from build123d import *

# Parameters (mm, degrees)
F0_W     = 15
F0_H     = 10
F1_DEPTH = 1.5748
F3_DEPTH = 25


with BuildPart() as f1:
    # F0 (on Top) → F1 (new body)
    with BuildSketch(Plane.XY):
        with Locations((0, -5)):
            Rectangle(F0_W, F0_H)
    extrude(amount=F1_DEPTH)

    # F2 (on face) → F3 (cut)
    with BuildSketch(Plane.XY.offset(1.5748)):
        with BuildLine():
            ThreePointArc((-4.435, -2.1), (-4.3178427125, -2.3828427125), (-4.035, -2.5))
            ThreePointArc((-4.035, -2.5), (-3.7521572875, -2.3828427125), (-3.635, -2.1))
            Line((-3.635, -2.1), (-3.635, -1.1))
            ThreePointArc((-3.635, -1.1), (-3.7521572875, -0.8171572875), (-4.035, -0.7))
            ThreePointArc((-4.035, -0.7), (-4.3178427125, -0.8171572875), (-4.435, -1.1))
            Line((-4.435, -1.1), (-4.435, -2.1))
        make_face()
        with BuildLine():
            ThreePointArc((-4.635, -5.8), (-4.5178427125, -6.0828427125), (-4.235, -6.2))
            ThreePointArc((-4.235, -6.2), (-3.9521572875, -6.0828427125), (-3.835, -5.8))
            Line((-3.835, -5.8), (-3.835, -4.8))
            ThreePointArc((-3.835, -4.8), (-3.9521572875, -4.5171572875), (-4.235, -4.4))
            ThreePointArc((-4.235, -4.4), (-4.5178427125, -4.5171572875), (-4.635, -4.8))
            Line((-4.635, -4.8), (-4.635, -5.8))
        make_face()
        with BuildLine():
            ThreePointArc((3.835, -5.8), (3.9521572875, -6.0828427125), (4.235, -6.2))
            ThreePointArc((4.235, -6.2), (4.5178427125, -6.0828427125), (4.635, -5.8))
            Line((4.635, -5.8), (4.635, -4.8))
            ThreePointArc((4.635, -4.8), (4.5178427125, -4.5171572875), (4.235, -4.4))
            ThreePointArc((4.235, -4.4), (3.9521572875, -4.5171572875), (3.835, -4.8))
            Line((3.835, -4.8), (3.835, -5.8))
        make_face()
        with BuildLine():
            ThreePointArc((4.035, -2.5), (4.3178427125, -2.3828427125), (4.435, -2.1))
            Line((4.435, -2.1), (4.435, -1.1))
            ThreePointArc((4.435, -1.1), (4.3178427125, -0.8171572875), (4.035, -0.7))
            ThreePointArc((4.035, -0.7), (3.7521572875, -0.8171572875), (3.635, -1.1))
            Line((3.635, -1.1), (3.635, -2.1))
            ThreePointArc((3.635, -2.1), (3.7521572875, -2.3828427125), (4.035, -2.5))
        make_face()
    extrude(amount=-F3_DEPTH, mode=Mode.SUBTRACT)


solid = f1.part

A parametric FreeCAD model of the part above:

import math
import FreeCAD as App
import Part
import Sketcher

doc = App.newDocument("Part")
body = doc.addObject("PartDesign::Body", "Body")

# Sketch on XY plane
sketch1 = doc.addObject("Sketcher::SketchObject", "Sketch")
body.addObject(sketch1)
sketch1.AttachmentSupport = (doc.XY_Plane, [""])
sketch1.MapMode = "FlatFace"
sketch1.addGeometry(Part.LineSegment(App.Vector(-7.5, 0, 0), App.Vector(-7.5, -10, 0)), False)
sketch1.addGeometry(Part.LineSegment(App.Vector(-7.5, -10, 0), App.Vector(7.5, -10, 0)), False)
sketch1.addGeometry(Part.LineSegment(App.Vector(7.5, -10, 0), App.Vector(7.5, 0, 0)), False)
sketch1.addGeometry(Part.LineSegment(App.Vector(7.5, 0, 0), App.Vector(-7.5, 0, 0)), False)
sketch1.addConstraint(Sketcher.Constraint("Coincident", 0, 2, 1, 1))
sketch1.addConstraint(Sketcher.Constraint("Coincident", 1, 2, 2, 1))
sketch1.addConstraint(Sketcher.Constraint("Coincident", 2, 2, 3, 1))
sketch1.addConstraint(Sketcher.Constraint("Coincident", 3, 2, 0, 1))
sketch1.addConstraint(Sketcher.Constraint("Vertical", 0))
sketch1.addConstraint(Sketcher.Constraint("Horizontal", 1))
sketch1.addConstraint(Sketcher.Constraint("Vertical", 2))
sketch1.addConstraint(Sketcher.Constraint("Horizontal", 3))
sketch1.addConstraint(Sketcher.Constraint("Symmetric", 2, 2, 3, 2, -1, 1))
sketch1.addConstraint(Sketcher.Constraint("DistanceX", 1, 1, 1, 2, 15.0))
sketch1.addConstraint(Sketcher.Constraint("DistanceY", 0, 2, 0, 1, 10.0))
pad1 = doc.addObject("PartDesign::Pad", "Pad")
body.addObject(pad1)
pad1.Profile = sketch1
pad1.Length = 1.5748

# Sketch on XY plane
sketch2 = doc.addObject("Sketcher::SketchObject", "Sketch001")
body.addObject(sketch2)
sketch2.AttachmentSupport = (doc.XY_Plane, [""])
sketch2.MapMode = "FlatFace"
sketch2.AttachmentOffset = App.Placement(App.Vector(0, 0, 1.5748), App.Rotation())
sketch2.addGeometry(Part.ArcOfCircle(Part.Circle(App.Vector(-4.035, -2.1, 0), App.Vector(0, 0, 1), 0.4), math.radians(180), math.radians(270)), False)
sketch2.addGeometry(Part.ArcOfCircle(Part.Circle(App.Vector(-4.035, -2.1, 0), App.Vector(0, 0, 1), 0.4), math.radians(-90), math.radians(0)), False)
sketch2.addGeometry(Part.LineSegment(App.Vector(-3.635, -2.1, 0), App.Vector(-3.635, -1.1, 0)), False)
sketch2.addGeometry(Part.ArcOfCircle(Part.Circle(App.Vector(-4.035, -1.1, 0), App.Vector(0, 0, 1), 0.4), math.radians(0), math.radians(90)), False)
sketch2.addGeometry(Part.ArcOfCircle(Part.Circle(App.Vector(-4.035, -1.1, 0), App.Vector(0, 0, 1), 0.4), math.radians(90), math.radians(180)), False)
sketch2.addGeometry(Part.LineSegment(App.Vector(-4.435, -1.1, 0), App.Vector(-4.435, -2.1, 0)), False)
sketch2.addGeometry(Part.ArcOfCircle(Part.Circle(App.Vector(-4.235, -5.8, 0), App.Vector(0, 0, 1), 0.4), math.radians(180), math.radians(270)), False)
sketch2.addGeometry(Part.ArcOfCircle(Part.Circle(App.Vector(-4.235, -5.8, 0), App.Vector(0, 0, 1), 0.4), math.radians(-90), math.radians(0)), False)
sketch2.addGeometry(Part.LineSegment(App.Vector(-3.835, -5.8, 0), App.Vector(-3.835, -4.8, 0)), False)
sketch2.addGeometry(Part.ArcOfCircle(Part.Circle(App.Vector(-4.235, -4.8, 0), App.Vector(0, 0, 1), 0.4), math.radians(0), math.radians(90)), False)
sketch2.addGeometry(Part.ArcOfCircle(Part.Circle(App.Vector(-4.235, -4.8, 0), App.Vector(0, 0, 1), 0.4), math.radians(90), math.radians(180)), False)
sketch2.addGeometry(Part.LineSegment(App.Vector(-4.635, -4.8, 0), App.Vector(-4.635, -5.8, 0)), False)
sketch2.addGeometry(Part.ArcOfCircle(Part.Circle(App.Vector(4.235, -5.8, 0), App.Vector(0, 0, 1), 0.4), math.radians(180), math.radians(270)), False)
sketch2.addGeometry(Part.ArcOfCircle(Part.Circle(App.Vector(4.235, -5.8, 0), App.Vector(0, 0, 1), 0.4), math.radians(-90), math.radians(0)), False)
sketch2.addGeometry(Part.LineSegment(App.Vector(4.635, -5.8, 0), App.Vector(4.635, -4.8, 0)), False)
sketch2.addGeometry(Part.ArcOfCircle(Part.Circle(App.Vector(4.235, -4.8, 0), App.Vector(0, 0, 1), 0.4), math.radians(0), math.radians(90)), False)
sketch2.addGeometry(Part.ArcOfCircle(Part.Circle(App.Vector(4.235, -4.8, 0), App.Vector(0, 0, 1), 0.4), math.radians(90), math.radians(180)), False)
sketch2.addGeometry(Part.LineSegment(App.Vector(3.835, -4.8, 0), App.Vector(3.835, -5.8, 0)), False)
sketch2.addGeometry(Part.ArcOfCircle(Part.Circle(App.Vector(4.035, -2.1, 0), App.Vector(0, 0, 1), 0.4), math.radians(-90), math.radians(0)), False)
sketch2.addGeometry(Part.LineSegment(App.Vector(4.435, -2.1, 0), App.Vector(4.435, -1.1, 0)), False)
sketch2.addGeometry(Part.ArcOfCircle(Part.Circle(App.Vector(4.035, -1.1, 0), App.Vector(0, 0, 1), 0.4), math.radians(0), math.radians(90)), False)
sketch2.addGeometry(Part.ArcOfCircle(Part.Circle(App.Vector(4.035, -1.1, 0), App.Vector(0, 0, 1), 0.4), math.radians(90), math.radians(180)), False)
sketch2.addGeometry(Part.LineSegment(App.Vector(3.635, -1.1, 0), App.Vector(3.635, -2.1, 0)), False)
sketch2.addGeometry(Part.ArcOfCircle(Part.Circle(App.Vector(4.035, -2.1, 0), App.Vector(0, 0, 1), 0.4), math.radians(180), math.radians(270)), False)
sketch2.addConstraint(Sketcher.Constraint("Tangent", 0, 2, 1, 1))
sketch2.addConstraint(Sketcher.Constraint("Tangent", 1, 2, 2, 1))
sketch2.addConstraint(Sketcher.Constraint("Tangent", 2, 2, 3, 1))
sketch2.addConstraint(Sketcher.Constraint("Tangent", 3, 2, 4, 1))
sketch2.addConstraint(Sketcher.Constraint("Tangent", 4, 2, 5, 1))
sketch2.addConstraint(Sketcher.Constraint("Tangent", 5, 2, 0, 1))
sketch2.addConstraint(Sketcher.Constraint("Tangent", 6, 2, 7, 1))
sketch2.addConstraint(Sketcher.Constraint("Tangent", 7, 2, 8, 1))
sketch2.addConstraint(Sketcher.Constraint("Tangent", 8, 2, 9, 1))
sketch2.addConstraint(Sketcher.Constraint("Tangent", 9, 2, 10, 1))
sketch2.addConstraint(Sketcher.Constraint("Tangent", 10, 2, 11, 1))
sketch2.addConstraint(Sketcher.Constraint("Tangent", 11, 2, 6, 1))
sketch2.addConstraint(Sketcher.Constraint("Tangent", 12, 2, 13, 1))
sketch2.addConstraint(Sketcher.Constraint("Tangent", 13, 2, 14, 1))
sketch2.addConstraint(Sketcher.Constraint("Tangent", 14, 2, 15, 1))
sketch2.addConstraint(Sketcher.Constraint("Tangent", 15, 2, 16, 1))
sketch2.addConstraint(Sketcher.Constraint("Tangent", 16, 2, 17, 1))
sketch2.addConstraint(Sketcher.Constraint("Tangent", 17, 2, 12, 1))
sketch2.addConstraint(Sketcher.Constraint("Tangent", 18, 2, 19, 1))
sketch2.addConstraint(Sketcher.Constraint("Tangent", 19, 2, 20, 1))
sketch2.addConstraint(Sketcher.Constraint("Tangent", 20, 2, 21, 1))
sketch2.addConstraint(Sketcher.Constraint("Tangent", 21, 2, 22, 1))
sketch2.addConstraint(Sketcher.Constraint("Tangent", 22, 2, 23, 1))
sketch2.addConstraint(Sketcher.Constraint("Tangent", 23, 2, 18, 1))
sketch2.addConstraint(Sketcher.Constraint("Vertical", 2))
sketch2.addConstraint(Sketcher.Constraint("Vertical", 5))
sketch2.addConstraint(Sketcher.Constraint("Vertical", 8))
sketch2.addConstraint(Sketcher.Constraint("Vertical", 11))
sketch2.addConstraint(Sketcher.Constraint("Vertical", 14))
sketch2.addConstraint(Sketcher.Constraint("Vertical", 17))
sketch2.addConstraint(Sketcher.Constraint("Vertical", 19))
sketch2.addConstraint(Sketcher.Constraint("Vertical", 22))
sketch2.addConstraint(Sketcher.Constraint("Equal", 0, 1))
sketch2.addConstraint(Sketcher.Constraint("Equal", 1, 3))
sketch2.addConstraint(Sketcher.Constraint("Equal", 4, 6))
sketch2.addConstraint(Sketcher.Constraint("Equal", 6, 7))
sketch2.addConstraint(Sketcher.Constraint("Equal", 7, 9))
sketch2.addConstraint(Sketcher.Constraint("Equal", 10, 12))
sketch2.addConstraint(Sketcher.Constraint("Equal", 12, 13))
sketch2.addConstraint(Sketcher.Constraint("Equal", 13, 15))
sketch2.addConstraint(Sketcher.Constraint("Equal", 16, 18))
sketch2.addConstraint(Sketcher.Constraint("Equal", 18, 20))
sketch2.addConstraint(Sketcher.Constraint("Equal", 20, 21))
sketch2.addConstraint(Sketcher.Constraint("Symmetric", 6, 3, 12, 3, -2))
sketch2.addConstraint(Sketcher.Constraint("Symmetric", 0, 3, 18, 3, -2))
sketch2.addConstraint(Sketcher.Constraint("Symmetric", 9, 2, 15, 2, -2))
sketch2.addConstraint(Sketcher.Constraint("Symmetric", 3, 2, 20, 2, -2))
sketch2.addConstraint(Sketcher.Constraint("Vertical", 4, 3, 0, 2))
sketch2.addConstraint(Sketcher.Constraint("Vertical", 0, 2, 3, 2))
sketch2.addConstraint(Sketcher.Constraint("Vertical", 10, 3, 6, 2))
sketch2.addConstraint(Sketcher.Constraint("Vertical", 6, 2, 9, 2))
sketch2.addConstraint(Sketcher.Constraint("Vertical", 16, 3, 12, 2))
sketch2.addConstraint(Sketcher.Constraint("Vertical", 20, 2, 23, 2))
sketch2.addConstraint(Sketcher.Constraint("Equal", 5, 8))
sketch2.addConstraint(Sketcher.Constraint("Radius", 0, 0.4))
sketch2.addConstraint(Sketcher.Constraint("DistanceY", 2, 1, 2, 2, 1.0))
sketch2.addConstraint(Sketcher.Constraint("DistanceY", 0, 3, -1, 1, 2.1))
sketch2.addConstraint(Sketcher.Constraint("DistanceY", 6, 3, -1, 1, 5.8))
sketch2.addConstraint(Sketcher.Constraint("DistanceX", 6, 3, 0, 3, 0.2))
sketch2.addConstraint(Sketcher.Constraint("DistanceX", 6, 3, 12, 3, 8.47))
pocket1 = doc.addObject("PartDesign::Pocket", "Pocket")
body.addObject(pocket1)
pocket1.Profile = sketch2
pocket1.Length = 25

doc.recompute()
